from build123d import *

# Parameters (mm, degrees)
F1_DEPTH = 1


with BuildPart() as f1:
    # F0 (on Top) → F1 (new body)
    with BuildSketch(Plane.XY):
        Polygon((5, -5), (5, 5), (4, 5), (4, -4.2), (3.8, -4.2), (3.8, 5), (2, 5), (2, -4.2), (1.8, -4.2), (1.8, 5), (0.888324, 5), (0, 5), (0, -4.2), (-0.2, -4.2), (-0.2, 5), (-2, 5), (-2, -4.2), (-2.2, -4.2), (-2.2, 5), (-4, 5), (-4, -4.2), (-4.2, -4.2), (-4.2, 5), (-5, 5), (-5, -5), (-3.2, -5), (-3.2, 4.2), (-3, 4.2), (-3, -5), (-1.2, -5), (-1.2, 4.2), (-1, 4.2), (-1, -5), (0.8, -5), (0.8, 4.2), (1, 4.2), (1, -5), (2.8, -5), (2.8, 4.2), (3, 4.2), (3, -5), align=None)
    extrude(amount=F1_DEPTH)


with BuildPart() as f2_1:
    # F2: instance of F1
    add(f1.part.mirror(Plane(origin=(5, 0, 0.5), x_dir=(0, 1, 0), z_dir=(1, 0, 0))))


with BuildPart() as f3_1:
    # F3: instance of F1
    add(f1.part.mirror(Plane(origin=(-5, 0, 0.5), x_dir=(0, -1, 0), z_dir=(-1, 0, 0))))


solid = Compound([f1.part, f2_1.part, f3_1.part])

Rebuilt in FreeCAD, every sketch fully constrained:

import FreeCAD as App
import Part
import Sketcher
from FreeCAD import Vector
Q = App.Units.Quantity

doc = App.newDocument("Part")
body = doc.addObject("PartDesign::Body", "Body")

sketch1 = body.newObject("Sketcher::SketchObject", "Sketch")
sketch1.AttachmentSupport = (doc.getObject("XY_Plane"), [""])
sketch1.MapMode = "FlatFace"
sketch1.addGeometry([
    Part.LineSegment(Vector(5, -5, 0), Vector(5, 5, 0)),
    Part.LineSegment(Vector(5, 5, 0), Vector(4, 5, 0)),
    Part.LineSegment(Vector(4, 5, 0), Vector(4, -4.2, 0)),
    Part.LineSegment(Vector(4, -4.2, 0), Vector(3.8, -4.2, 0)),
    Part.LineSegment(Vector(3.8, -4.2, 0), Vector(3.8, 5, 0)),
    Part.LineSegment(Vector(3.8, 5, 0), Vector(2, 5, 0)),
    Part.LineSegment(Vector(2, 5, 0), Vector(2, -4.2, 0)),
    Part.LineSegment(Vector(2, -4.2, 0), Vector(1.8, -4.2, 0)),
    Part.LineSegment(Vector(1.8, -4.2, 0), Vector(1.8, 5, 0)),
    Part.LineSegment(Vector(1.8, 5, 0), Vector(0, 5, 0)),
    Part.LineSegment(Vector(0, 5, 0), Vector(0, -4.2, 0)),
    Part.LineSegment(Vector(0, -4.2, 0), Vector(-0.2, -4.2, 0)),
    Part.LineSegment(Vector(-0.2, -4.2, 0), Vector(-0.2, 5, 0)),
    Part.LineSegment(Vector(-0.2, 5, 0), Vector(-2, 5, 0)),
    Part.LineSegment(Vector(-2, 5, 0), Vector(-2, -4.2, 0)),
    Part.LineSegment(Vector(-2, -4.2, 0), Vector(-2.2, -4.2, 0)),
    Part.LineSegment(Vector(-2.2, -4.2, 0), Vector(-2.2, 5, 0)),
    Part.LineSegment(Vector(-2.2, 5, 0), Vector(-4, 5, 0)),
    Part.LineSegment(Vector(-4, 5, 0), Vector(-4, -4.2, 0)),
    Part.LineSegment(Vector(-4, -4.2, 0), Vector(-4.2, -4.2, 0)),
    Part.LineSegment(Vector(-4.2, -4.2, 0), Vector(-4.2, 5, 0)),
    Part.LineSegment(Vector(-4.2, 5, 0), Vector(-5, 5, 0)),
    Part.LineSegment(Vector(-5, 5, 0), Vector(-5, -5, 0)),
    Part.LineSegment(Vector(-5, -5, 0), Vector(-3.2, -5, 0)),
    Part.LineSegment(Vector(-3.2, -5, 0), Vector(-3.2, 4.2, 0)),
    Part.LineSegment(Vector(-3.2, 4.2, 0), Vector(-3, 4.2, 0)),
    Part.LineSegment(Vector(-3, 4.2, 0), Vector(-3, -5, 0)),
    Part.LineSegment(Vector(-3, -5, 0), Vector(-1.2, -5, 0)),
    Part.LineSegment(Vector(-1.2, -5, 0), Vector(-1.2, 4.2, 0)),
    Part.LineSegment(Vector(-1.2, 4.2, 0), Vector(-1, 4.2, 0)),
    Part.LineSegment(Vector(-1, 4.2, 0), Vector(-1, -5, 0)),
    Part.LineSegment(Vector(-1, -5, 0), Vector(0.8, -5, 0)),
    Part.LineSegment(Vector(0.8, -5, 0), Vector(0.8, 4.2, 0)),
    Part.LineSegment(Vector(0.8, 4.2, 0), Vector(1, 4.2, 0)),
    Part.LineSegment(Vector(1, 4.2, 0), Vector(1, -5, 0)),
    Part.LineSegment(Vector(1, -5, 0), Vector(2.8, -5, 0)),
    Part.LineSegment(Vector(2.8, -5, 0), Vector(2.8, 4.2, 0)),
    Part.LineSegment(Vector(2.8, 4.2, 0), Vector(3, 4.2, 0)),
    Part.LineSegment(Vector(3, 4.2, 0), Vector(3, -5, 0)),
    Part.LineSegment(Vector(3, -5, 0), Vector(5, -5, 0)),
], False)
sketch1.addConstraint([
    Sketcher.Constraint("Coincident", 0, 2, 1, 1),
    Sketcher.Constraint("Coincident", 1, 2, 2, 1),
    Sketcher.Constraint("Coincident", 2, 2, 3, 1),
    Sketcher.Constraint("Coincident", 3, 2, 4, 1),
    Sketcher.Constraint("Coincident", 4, 2, 5, 1),
    Sketcher.Constraint("Coincident", 5, 2, 6, 1),
    Sketcher.Constraint("Coincident", 6, 2, 7, 1),
    Sketcher.Constraint("Coincident", 7, 2, 8, 1),
    Sketcher.Constraint("Coincident", 8, 2, 9, 1),
    Sketcher.Constraint("Coincident", 9, 2, 10, 1),
    Sketcher.Constraint("Coincident", 10, 2, 11, 1),
    Sketcher.Constraint("Coincident", 11, 2, 12, 1),
    Sketcher.Constraint("Coincident", 12, 2, 13, 1),
    Sketcher.Constraint("Coincident", 13, 2, 14, 1),
    Sketcher.Constraint("Coincident", 14, 2, 15, 1),
    Sketcher.Constraint("Coincident", 15, 2, 16, 1),
    Sketcher.Constraint("Coincident", 16, 2, 17, 1),
    Sketcher.Constraint("Coincident", 17, 2, 18, 1),
    Sketcher.Constraint("Coincident", 18, 2, 19, 1),
    Sketcher.Constraint("Coincident", 19, 2, 20, 1),
    Sketcher.Constraint("Coincident", 20, 2, 21, 1),
    Sketcher.Constraint("Coincident", 21, 2, 22, 1),
    Sketcher.Constraint("Coincident", 22, 2, 23, 1),
    Sketcher.Constraint("Coincident", 23, 2, 24, 1),
    Sketcher.Constraint("Coincident", 24, 2, 25, 1),
    Sketcher.Constraint("Coincident", 25, 2, 26, 1),
    Sketcher.Constraint("Coincident", 26, 2, 27, 1),
    Sketcher.Constraint("Coincident", 27, 2, 28, 1),
    Sketcher.Constraint("Coincident", 28, 2, 29, 1),
    Sketcher.Constraint("Coincident", 29, 2, 30, 1),
    Sketcher.Constraint("Coincident", 30, 2, 31, 1),
    Sketcher.Constraint("Coincident", 31, 2, 32, 1),
    Sketcher.Constraint("Coincident", 32, 2, 33, 1),
    Sketcher.Constraint("Coincident", 33, 2, 34, 1),
    Sketcher.Constraint("Coincident", 34, 2, 35, 1),
    Sketcher.Constraint("Coincident", 35, 2, 36, 1),
    Sketcher.Constraint("Coincident", 36, 2, 37, 1),
    Sketcher.Constraint("Coincident", 37, 2, 38, 1),
    Sketcher.Constraint("Coincident", 38, 2, 39, 1),
    Sketcher.Constraint("Coincident", 39, 2, 0, 1),
    Sketcher.Constraint("Vertical", 0),
    Sketcher.Constraint("Horizontal", 1),
    Sketcher.Constraint("Vertical", 2),
    Sketcher.Constraint("Horizontal", 3),
    Sketcher.Constraint("Vertical", 4),
    Sketcher.Constraint("Horizontal", 5),
    Sketcher.Constraint("Vertical", 6),
    Sketcher.Constraint("Horizontal", 7),
    Sketcher.Constraint("Vertical", 8),
    Sketcher.Constraint("Horizontal", 9),
    Sketcher.Constraint("Vertical", 10),
    Sketcher.Constraint("Horizontal", 11),
    Sketcher.Constraint("Vertical", 12),
    Sketcher.Constraint("Horizontal", 13),
    Sketcher.Constraint("Vertical", 14),
    Sketcher.Constraint("Horizontal", 15),
    Sketcher.Constraint("Vertical", 16),
    Sketcher.Constraint("Horizontal", 17),
    Sketcher.Constraint("Vertical", 18),
    Sketcher.Constraint("Horizontal", 19),
    Sketcher.Constraint("Vertical", 20),
    Sketcher.Constraint("Horizontal", 21),
    Sketcher.Constraint("Vertical", 22),
    Sketcher.Constraint("Horizontal", 23),
    Sketcher.Constraint("Vertical", 24),
    Sketcher.Constraint("Horizontal", 25),
    Sketcher.Constraint("Vertical", 26),
    Sketcher.Constraint("Horizontal", 27),
    Sketcher.Constraint("Vertical", 28),
    Sketcher.Constraint("Horizontal", 29),
    Sketcher.Constraint("Vertical", 30),
    Sketcher.Constraint("Horizontal", 31),
    Sketcher.Constraint("Vertical", 32),
    Sketcher.Constraint("Horizontal", 33),
    Sketcher.Constraint("Vertical", 34),
    Sketcher.Constraint("Horizontal", 35),
    Sketcher.Constraint("Vertical", 36),
    Sketcher.Constraint("Horizontal", 37),
    Sketcher.Constraint("Vertical", 38),
    Sketcher.Constraint("Horizontal", 39),
    Sketcher.Constraint("Symmetric", 0, 2, 22, 2, -1, 1),
    Sketcher.Constraint("Symmetric", 5, 2, 13, 2, -2),
    Sketcher.Constraint("Symmetric", 1, 2, 17, 2, -2),
    Sketcher.Constraint("Symmetric", 29, 2, 33, 2, -2),
    Sketcher.Constraint("Symmetric", 25, 2, 37, 2, -2),
    Sketcher.Constraint("PointOnObject", 9, 2, -2),
    Sketcher.Constraint("Horizontal", 1, 2, 4, 2),
    Sketcher.Constraint("Horizontal", 3, 2, 6, 2),
    Sketcher.Constraint("Horizontal", 5, 2, 8, 2),
    Sketcher.Constraint("Horizontal", 7, 2, 10, 2),
    Sketcher.Constraint("Horizontal", 11, 2, 14, 2),
    Sketcher.Constraint("Horizontal", 15, 2, 18, 2),
    Sketcher.Constraint("Horizontal", 17, 2, 20, 2),
    Sketcher.Constraint("Horizontal", 23, 2, 26, 2),
    Sketcher.Constraint("Horizontal", 25, 2, 28, 2),
    Sketcher.Constraint("Horizontal", 27, 2, 30, 2),
    Sketcher.Constraint("Horizontal", 31, 2, 34, 2),
    Sketcher.Constraint("Horizontal", 35, 2, 38, 2),
    Sketcher.Constraint("Equal", 3, 7),
    Sketcher.Constraint("Equal", 5, 9),
    Sketcher.Constraint("Equal", 7, 11),
    Sketcher.Constraint("Equal", 11, 15),
    Sketcher.Constraint("Equal", 15, 19),
    Sketcher.Constraint("Equal", 17, 23),
    Sketcher.Constraint("Equal", 19, 25),
    Sketcher.Constraint("Equal", 23, 27),
    Sketcher.Constraint("Equal", 25, 29),
    Sketcher.Constraint("Equal", 27, 31),
    Sketcher.Constraint("Equal", 29, 33),
    Sketcher.Constraint("Equal", 31, 35),
    Sketcher.Constraint("Equal", 20, 24),
    Sketcher.Constraint("DistanceX", 1, 2, 1, 1, Q("1 mm")),
    Sketcher.Constraint("DistanceY", 0, 1, 0, 2, Q("10 mm")),
    Sketcher.Constraint("DistanceX", 3, 2, 3, 1, Q("0.2 mm")),
    Sketcher.Constraint("DistanceY", 2, 2, 2, 1, Q("9.2 mm")),
])
pad1 = body.newObject("PartDesign::Pad", "Pad")
pad1.Profile = sketch1
pad1.Length = 1
body2 = doc.addObject("PartDesign::Body", "Body001")
doc.recompute()

mirroring = doc.addObject("Part::Mirroring", "Mirroring")
mirroring.Source = body
mirroring.Base = Vector(5, 0, 0.5)
mirroring.Normal = Vector(1, 0, 0)
body2.BaseFeature = mirroring
doc.recompute()
body3 = doc.addObject("PartDesign::Body", "Body002")
doc.recompute()

mirroring2 = doc.addObject("Part::Mirroring", "Mirroring001")
mirroring2.Source = body
mirroring2.Base = Vector(-5, 0, 0.5)
mirroring2.Normal = Vector(-1, 0, 0)
body3.BaseFeature = mirroring2
doc.recompute()
mirroring.Visibility = False
mirroring2.Visibility = False

doc.recompute()
